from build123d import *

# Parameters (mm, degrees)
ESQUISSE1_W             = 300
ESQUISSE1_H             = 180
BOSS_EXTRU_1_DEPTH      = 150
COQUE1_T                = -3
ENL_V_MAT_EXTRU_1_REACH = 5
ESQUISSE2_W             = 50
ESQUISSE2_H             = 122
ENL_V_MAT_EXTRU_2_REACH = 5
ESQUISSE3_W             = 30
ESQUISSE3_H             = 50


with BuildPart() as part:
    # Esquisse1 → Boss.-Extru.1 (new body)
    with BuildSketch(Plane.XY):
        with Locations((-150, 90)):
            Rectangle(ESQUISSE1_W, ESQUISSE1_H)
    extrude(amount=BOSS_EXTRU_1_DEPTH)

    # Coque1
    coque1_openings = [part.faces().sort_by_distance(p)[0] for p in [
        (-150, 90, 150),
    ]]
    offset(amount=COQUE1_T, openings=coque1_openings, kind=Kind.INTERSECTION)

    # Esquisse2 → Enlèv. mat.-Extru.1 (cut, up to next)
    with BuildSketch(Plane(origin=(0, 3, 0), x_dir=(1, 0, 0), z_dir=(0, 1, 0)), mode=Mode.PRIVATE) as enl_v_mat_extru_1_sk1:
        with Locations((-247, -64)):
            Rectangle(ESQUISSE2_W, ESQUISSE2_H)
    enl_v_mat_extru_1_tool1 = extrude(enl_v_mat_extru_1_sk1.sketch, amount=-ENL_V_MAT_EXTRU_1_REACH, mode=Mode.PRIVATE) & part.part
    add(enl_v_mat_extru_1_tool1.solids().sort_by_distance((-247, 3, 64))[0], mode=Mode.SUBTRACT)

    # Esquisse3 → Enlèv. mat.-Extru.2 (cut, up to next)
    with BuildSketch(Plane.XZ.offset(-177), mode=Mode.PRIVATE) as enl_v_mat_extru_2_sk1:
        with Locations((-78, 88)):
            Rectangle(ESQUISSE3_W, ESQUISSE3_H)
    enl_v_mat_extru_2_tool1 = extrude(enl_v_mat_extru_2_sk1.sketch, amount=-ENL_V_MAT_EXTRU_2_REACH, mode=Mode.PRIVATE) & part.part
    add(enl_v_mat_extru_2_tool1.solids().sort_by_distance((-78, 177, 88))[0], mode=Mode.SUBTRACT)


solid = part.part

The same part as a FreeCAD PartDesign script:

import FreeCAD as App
import Part
import Sketcher

V = App.Vector
Q = App.Units.Quantity


def faces_at(feature, points):
    """Names of the faces that lie closest to the given points."""
    faces = feature.Shape.Faces
    near = lambda p: min(range(len(faces)), key=lambda i: faces[i].distToShape(Part.Vertex(*p))[0])
    return sorted({f"Face{near(p) + 1}" for p in points})

doc = App.newDocument("Part")
params = doc.addObject("Spreadsheet::Sheet", "Params")
for row, (alias, value) in enumerate([
    ("sketch1_width", "300 mm"),
    ("sketch1_height", "180 mm"),
    ("pad1_length", "150 mm"),
    ("thickness_wall", "3 mm"),
    ("sketch2_width", "50 mm"),
    ("sketch2_height", "122 mm"),
    ("sketch3_width", "30 mm"),
    ("sketch3_height", "50 mm"),
], start=1):
    params.set(f"A{row}", alias)
    params.set(f"B{row}", "=" + value)
    params.setAlias(f"B{row}", alias)

body = doc.addObject("PartDesign::Body", "Body")

sketch1 = body.newObject("Sketcher::SketchObject", "Sketch")
sketch1.AttachmentSupport = (doc.getObject("XY_Plane"), [""])
sketch1.MapMode = "FlatFace"
sketch1.addGeometry([
    Part.LineSegment(V(-300, 180, 0), V(-300, 0, 0)),
    Part.LineSegment(V(-300, 0, 0), V(0, 0, 0)),
    Part.LineSegment(V(0, 0, 0), V(0, 180, 0)),
    Part.LineSegment(V(0, 180, 0), V(-300, 180, 0)),
], False)
sketch1.addConstraint([
    Sketcher.Constraint("Coincident", 0, 2, 1, 1),
    Sketcher.Constraint("Coincident", 1, 2, 2, 1),
    Sketcher.Constraint("Coincident", 2, 2, 3, 1),
    Sketcher.Constraint("Coincident", 3, 2, 0, 1),
    Sketcher.Constraint("Vertical", 0),
    Sketcher.Constraint("Horizontal", 1),
    Sketcher.Constraint("Vertical", 2),
    Sketcher.Constraint("Horizontal", 3),
    Sketcher.Constraint("Coincident", 1, 2, -1, 1),
    Sketcher.Constraint("DistanceX", 1, 1, 1, 2, Q("300 mm")),
    Sketcher.Constraint("DistanceY", 0, 2, 0, 1, Q("180 mm")),
])
sketch1.setExpression("Constraints[9]", "Params.sketch1_width")
sketch1.setExpression("Constraints[10]", "Params.sketch1_height")
pad1 = body.newObject("PartDesign::Pad", "Pad")
pad1.Profile = sketch1
pad1.setExpression("Length", "Params.pad1_length")
doc.recompute()

thickness = body.newObject("PartDesign::Thickness", "Thickness")
thickness.Base = (pad1, faces_at(pad1, [(-150, 90, 150)]))
thickness.setExpression("Value", "Params.thickness_wall")
thickness.Reversed = True
thickness.Join = "Intersection"

sketch2 = body.newObject("Sketcher::SketchObject", "Sketch001")
sketch2.AttachmentSupport = (doc.getObject("XZ_Plane"), [""])
sketch2.MapMode = "FlatFace"
sketch2.AttachmentOffset = App.Placement(V(0, 0, -3), App.Rotation())
sketch2.addGeometry([
    Part.LineSegment(V(-272, 3, 0), V(-272, 125, 0)),
    Part.LineSegment(V(-272, 125, 0), V(-222, 125, 0)),
    Part.LineSegment(V(-222, 125, 0), V(-222, 3, 0)),
    Part.LineSegment(V(-222, 3, 0), V(-272, 3, 0)),
], False)
sketch2.addConstraint([
    Sketcher.Constraint("Coincident", 0, 2, 1, 1),
    Sketcher.Constraint("Coincident", 1, 2, 2, 1),
    Sketcher.Constraint("Coincident", 2, 2, 3, 1),
    Sketcher.Constraint("Coincident", 3, 2, 0, 1),
    Sketcher.Constraint("Vertical", 0),
    Sketcher.Constraint("Horizontal", 1),
    Sketcher.Constraint("Vertical", 2),
    Sketcher.Constraint("Horizontal", 3),
    Sketcher.Constraint("DistanceX", 1, 1, 1, 2, Q("50 mm")),
    Sketcher.Constraint("DistanceY", 0, 1, 0, 2, Q("122 mm")),
    Sketcher.Constraint("DistanceX", 0, 2, -1, 1, Q("272 mm")),
    Sketcher.Constraint("DistanceY", -1, 1, 0, 2, Q("125 mm")),
])
sketch2.setExpression("Constraints[8]", "Params.sketch2_width")
sketch2.setExpression("Constraints[9]", "Params.sketch2_height")
pocket1 = body.newObject("PartDesign::Pocket", "Pocket")
pocket1.Profile = sketch2
pocket1.Type = "UpToFirst"
pocket1.Reversed = True

sketch3 = body.newObject("Sketcher::SketchObject", "Sketch002")
sketch3.AttachmentSupport = (doc.getObject("XZ_Plane"), [""])
sketch3.MapMode = "FlatFace"
sketch3.AttachmentOffset = App.Placement(V(0, 0, -177), App.Rotation())
sketch3.addGeometry([
    Part.LineSegment(V(-93, 113, 0), V(-93, 63, 0)),
    Part.LineSegment(V(-93, 63, 0), V(-63, 63, 0)),
    Part.LineSegment(V(-63, 63, 0), V(-63, 113, 0)),
    Part.LineSegment(V(-63, 113, 0), V(-93, 113, 0)),
], False)
sketch3.addConstraint([
    Sketcher.Constraint("Coincident", 0, 2, 1, 1),
    Sketcher.Constraint("Coincident", 1, 2, 2, 1),
    Sketcher.Constraint("Coincident", 2, 2, 3, 1),
    Sketcher.Constraint("Coincident", 3, 2, 0, 1),
    Sketcher.Constraint("Vertical", 0),
    Sketcher.Constraint("Horizontal", 1),
    Sketcher.Constraint("Vertical", 2),
    Sketcher.Constraint("Horizontal", 3),
    Sketcher.Constraint("DistanceX", 1, 1, 1, 2, Q("30 mm")),
    Sketcher.Constraint("DistanceY", 0, 2, 0, 1, Q("50 mm")),
    Sketcher.Constraint("DistanceX", 0, 2, -1, 1, Q("93 mm")),
    Sketcher.Constraint("DistanceY", -1, 1, 0, 2, Q("63 mm")),
])
sketch3.setExpression("Constraints[8]", "Params.sketch3_width")
sketch3.setExpression("Constraints[9]", "Params.sketch3_height")
pocket2 = body.newObject("PartDesign::Pocket", "Pocket001")
pocket2.Profile = sketch3
pocket2.Type = "UpToFirst"

doc.recompute()
